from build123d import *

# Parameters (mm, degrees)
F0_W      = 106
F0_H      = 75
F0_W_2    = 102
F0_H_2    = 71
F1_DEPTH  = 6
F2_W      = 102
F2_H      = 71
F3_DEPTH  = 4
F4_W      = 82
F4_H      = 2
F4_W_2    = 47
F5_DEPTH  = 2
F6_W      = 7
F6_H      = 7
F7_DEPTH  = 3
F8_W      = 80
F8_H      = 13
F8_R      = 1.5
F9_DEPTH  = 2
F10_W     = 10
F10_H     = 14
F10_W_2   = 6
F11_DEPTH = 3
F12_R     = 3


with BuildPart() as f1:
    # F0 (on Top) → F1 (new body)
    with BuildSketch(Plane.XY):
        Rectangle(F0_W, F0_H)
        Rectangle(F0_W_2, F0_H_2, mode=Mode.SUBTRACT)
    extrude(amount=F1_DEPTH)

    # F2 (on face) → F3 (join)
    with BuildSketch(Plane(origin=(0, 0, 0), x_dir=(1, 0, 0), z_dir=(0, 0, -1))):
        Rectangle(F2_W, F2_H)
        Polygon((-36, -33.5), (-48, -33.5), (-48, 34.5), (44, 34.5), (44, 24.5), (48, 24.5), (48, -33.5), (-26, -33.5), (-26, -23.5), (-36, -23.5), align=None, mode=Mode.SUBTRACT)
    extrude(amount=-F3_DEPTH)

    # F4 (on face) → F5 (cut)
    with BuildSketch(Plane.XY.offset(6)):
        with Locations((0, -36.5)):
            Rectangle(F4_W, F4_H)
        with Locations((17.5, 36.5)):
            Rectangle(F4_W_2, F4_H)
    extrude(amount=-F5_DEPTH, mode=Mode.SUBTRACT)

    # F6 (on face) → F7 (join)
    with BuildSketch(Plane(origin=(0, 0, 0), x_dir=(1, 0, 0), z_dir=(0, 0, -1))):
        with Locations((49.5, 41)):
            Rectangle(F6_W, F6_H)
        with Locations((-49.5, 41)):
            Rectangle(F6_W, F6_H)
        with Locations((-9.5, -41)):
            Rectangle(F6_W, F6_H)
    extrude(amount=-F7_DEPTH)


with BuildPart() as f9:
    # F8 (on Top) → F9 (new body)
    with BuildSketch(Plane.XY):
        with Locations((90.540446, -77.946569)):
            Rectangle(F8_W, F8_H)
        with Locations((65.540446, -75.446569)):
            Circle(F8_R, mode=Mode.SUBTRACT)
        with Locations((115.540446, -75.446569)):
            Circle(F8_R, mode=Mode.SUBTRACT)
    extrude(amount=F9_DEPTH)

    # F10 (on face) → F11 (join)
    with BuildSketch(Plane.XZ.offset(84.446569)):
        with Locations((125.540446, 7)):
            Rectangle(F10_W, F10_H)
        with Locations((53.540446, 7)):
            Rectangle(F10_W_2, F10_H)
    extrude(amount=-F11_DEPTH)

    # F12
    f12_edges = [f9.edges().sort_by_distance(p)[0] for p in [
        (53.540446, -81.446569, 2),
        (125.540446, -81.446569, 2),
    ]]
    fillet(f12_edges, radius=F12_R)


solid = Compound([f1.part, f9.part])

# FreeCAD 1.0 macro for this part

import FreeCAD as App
import Part
import Sketcher
from FreeCAD import Vector


def edges_at(feature, points):
    """Names of the edges that pass closest to the given points."""
    edges = feature.Shape.Edges
    near = lambda p: min(range(len(edges)), key=lambda i: edges[i].distToShape(Part.Vertex(*p))[0])
    return sorted({f"Edge{near(p) + 1}" for p in points})


def add_polygon(sketch, points):
    """Adds a closed chain of lines whose ends are joined by coincident constraints."""
    first, n = sketch.GeometryCount, len(points)
    for a, b in zip(points, points[1:] + points[:1]):
        sketch.addGeometry(Part.LineSegment(App.Vector(*a, 0), App.Vector(*b, 0)), False)
    for i in range(n):
        sketch.addConstraint(Sketcher.Constraint("Coincident", first + i, 2, first + (i + 1) % n, 1))

doc = App.newDocument("Part")
body = doc.addObject("PartDesign::Body", "Body")

# Sketch on XY plane
sketch1 = body.newObject("Sketcher::SketchObject", "Sketch")
sketch1.AttachmentSupport = (doc.getObject("XY_Plane"), [""])
sketch1.MapMode = "FlatFace"
add_polygon(sketch1, [(-53, 37.5), (-53, -37.5), (53, -37.5), (53, 37.5)])  # lines 0-3
add_polygon(sketch1, [(51, -35.5), (-51, -35.5), (-51, 35.5), (51, 35.5)])  # lines 4-7
sketch1.addConstraint(Sketcher.Constraint("Vertical", 0))
sketch1.addConstraint(Sketcher.Constraint("Horizontal", 1))
sketch1.addConstraint(Sketcher.Constraint("Vertical", 2))
sketch1.addConstraint(Sketcher.Constraint("Horizontal", 3))
sketch1.addConstraint(Sketcher.Constraint("Horizontal", 4))
sketch1.addConstraint(Sketcher.Constraint("Vertical", 5))
sketch1.addConstraint(Sketcher.Constraint("Horizontal", 6))
sketch1.addConstraint(Sketcher.Constraint("Vertical", 7))
sketch1.addConstraint(Sketcher.Constraint("Symmetric", 0, 2, 2, 2, -1, 1))
sketch1.addConstraint(Sketcher.Constraint("Symmetric", 4, 2, 6, 2, -1, 1))
sketch1.addConstraint(Sketcher.Constraint("DistanceX", 1, 1, 1, 2, 106.0))
sketch1.addConstraint(Sketcher.Constraint("DistanceX", 4, 2, 4, 1, 102.0))
sketch1.addConstraint(Sketcher.Constraint("DistanceY", 0, 2, 0, 1, 75.0))
sketch1.addConstraint(Sketcher.Constraint("DistanceY", 5, 1, 5, 2, 71.0))
pad1 = body.newObject("PartDesign::Pad", "Pad")
pad1.Profile = sketch1
pad1.Length = 6

# Sketch on XY plane
sketch2 = body.newObject("Sketcher::SketchObject", "Sketch001")
sketch2.AttachmentSupport = (doc.getObject("XY_Plane"), [""])
sketch2.MapMode = "FlatFace"
add_polygon(sketch2, [(-51, -35.5), (-51, 35.5), (51, 35.5), (51, -35.5)])  # lines 0-3
add_polygon(sketch2, [(-36, 23.5), (-36, 33.5), (-48, 33.5), (-48, -34.5), (44, -34.5), (44, -24.5), (48, -24.5), (48, 33.5), (-26, 33.5), (-26, 23.5)])  # lines 4-13
sketch2.addConstraint(Sketcher.Constraint("Vertical", 0))
sketch2.addConstraint(Sketcher.Constraint("Horizontal", 1))
sketch2.addConstraint(Sketcher.Constraint("Vertical", 2))
sketch2.addConstraint(Sketcher.Constraint("Horizontal", 3))
sketch2.addConstraint(Sketcher.Constraint("Vertical", 4))
sketch2.addConstraint(Sketcher.Constraint("Horizontal", 5))
sketch2.addConstraint(Sketcher.Constraint("Vertical", 6))
sketch2.addConstraint(Sketcher.Constraint("Horizontal", 7))
sketch2.addConstraint(Sketcher.Constraint("Vertical", 8))
sketch2.addConstraint(Sketcher.Constraint("Horizontal", 9))
sketch2.addConstraint(Sketcher.Constraint("Vertical", 10))
sketch2.addConstraint(Sketcher.Constraint("Horizontal", 11))
sketch2.addConstraint(Sketcher.Constraint("Vertical", 12))
sketch2.addConstraint(Sketcher.Constraint("Horizontal", 13))
sketch2.addConstraint(Sketcher.Constraint("Symmetric", 0, 2, 2, 2, -1, 1))
sketch2.addConstraint(Sketcher.Constraint("Symmetric", 5, 2, 10, 2, -2))
sketch2.addConstraint(Sketcher.Constraint("Equal", 13, 4))
sketch2.addConstraint(Sketcher.Constraint("Equal", 4, 8))
sketch2.addConstraint(Sketcher.Constraint("DistanceX", 1, 1, 1, 2, 102.0))
sketch2.addConstraint(Sketcher.Constraint("DistanceX", 5, 2, 5, 1, 12.0))
sketch2.addConstraint(Sketcher.Constraint("DistanceX", 7, 1, 7, 2, 92.0))
sketch2.addConstraint(Sketcher.Constraint("DistanceX", 9, 1, 9, 2, 4.0))
sketch2.addConstraint(Sketcher.Constraint("DistanceX", 11, 2, 11, 1, 74.0))
sketch2.addConstraint(Sketcher.Constraint("DistanceY", 0, 1, 0, 2, 71.0))
sketch2.addConstraint(Sketcher.Constraint("DistanceY", 6, 2, 6, 1, 68.0))
sketch2.addConstraint(Sketcher.Constraint("DistanceY", 4, 2, 0, 2, 2.0))
pad2 = body.newObject("PartDesign::Pad", "Pad001")
pad2.Profile = sketch2
pad2.Length = 4

# Sketch on XY plane
sketch3 = body.newObject("Sketcher::SketchObject", "Sketch002")
sketch3.AttachmentSupport = (doc.getObject("XY_Plane"), [""])
sketch3.MapMode = "FlatFace"
sketch3.AttachmentOffset = App.Placement(Vector(0, 0, 6), App.Rotation())
add_polygon(sketch3, [(-41, -35.5), (-41, -37.5), (41, -37.5), (41, -35.5)])  # lines 0-3
add_polygon(sketch3, [(-6, 37.5), (-6, 35.5), (41, 35.5), (41, 37.5)])  # lines 4-7
sketch3.addConstraint(Sketcher.Constraint("Vertical", 0))
sketch3.addConstraint(Sketcher.Constraint("Horizontal", 1))
sketch3.addConstraint(Sketcher.Constraint("Vertical", 2))
sketch3.addConstraint(Sketcher.Constraint("Horizontal", 3))
sketch3.addConstraint(Sketcher.Constraint("Vertical", 4))
sketch3.addConstraint(Sketcher.Constraint("Horizontal", 5))
sketch3.addConstraint(Sketcher.Constraint("Vertical", 6))
sketch3.addConstraint(Sketcher.Constraint("Horizontal", 7))
sketch3.addConstraint(Sketcher.Constraint("Symmetric", 3, 2, 5, 2, -1, 1))
sketch3.addConstraint(Sketcher.Constraint("Symmetric", 1, 2, 6, 2, -1))
sketch3.addConstraint(Sketcher.Constraint("DistanceX", 1, 1, 1, 2, 82.0))
sketch3.addConstraint(Sketcher.Constraint("DistanceX", 5, 1, 5, 2, 47.0))
sketch3.addConstraint(Sketcher.Constraint("DistanceY", 0, 2, 0, 1, 2.0))
sketch3.addConstraint(Sketcher.Constraint("DistanceY", 3, 2, 4, 2, 71.0))
pocket1 = body.newObject("PartDesign::Pocket", "Pocket")
pocket1.Profile = sketch3
pocket1.Length = 2

# Sketch on XY plane
sketch4 = body.newObject("Sketcher::SketchObject", "Sketch003")
sketch4.AttachmentSupport = (doc.getObject("XY_Plane"), [""])
sketch4.MapMode = "FlatFace"
add_polygon(sketch4, [(46, -44.5), (46, -37.5), (53, -37.5), (53, -44.5)])  # lines 0-3
add_polygon(sketch4, [(-53, -44.5), (-53, -37.5), (-46, -37.5), (-46, -44.5)])  # lines 4-7
add_polygon(sketch4, [(-13, 37.5), (-13, 44.5), (-6, 44.5), (-6, 37.5)])  # lines 8-11
sketch4.addConstraint(Sketcher.Constraint("Vertical", 0))
sketch4.addConstraint(Sketcher.Constraint("Horizontal", 1))
sketch4.addConstraint(Sketcher.Constraint("Vertical", 2))
sketch4.addConstraint(Sketcher.Constraint("Horizontal", 3))
sketch4.addConstraint(Sketcher.Constraint("Vertical", 4))
sketch4.addConstraint(Sketcher.Constraint("Horizontal", 5))
sketch4.addConstraint(Sketcher.Constraint("Vertical", 6))
sketch4.addConstraint(Sketcher.Constraint("Horizontal", 7))
sketch4.addConstraint(Sketcher.Constraint("Vertical", 8))
sketch4.addConstraint(Sketcher.Constraint("Horizontal", 9))
sketch4.addConstraint(Sketcher.Constraint("Vertical", 10))
sketch4.addConstraint(Sketcher.Constraint("Horizontal", 11))
sketch4.addConstraint(Sketcher.Constraint("Symmetric", 1, 2, 4, 2, -2))
sketch4.addConstraint(Sketcher.Constraint("Symmetric", 3, 2, 6, 2, -2))
sketch4.addConstraint(Sketcher.Constraint("Equal", 7, 9))
sketch4.addConstraint(Sketcher.Constraint("Equal", 11, 0))
sketch4.addConstraint(Sketcher.Constraint("Equal", 6, 8))
sketch4.addConstraint(Sketcher.Constraint("DistanceX", 1, 1, 1, 2, 7.0))
sketch4.addConstraint(Sketcher.Constraint("DistanceX", -1, 1, 0, 2, 46.0))
sketch4.addConstraint(Sketcher.Constraint("DistanceX", 8, 2, -1, 1, 13.0))
sketch4.addConstraint(Sketcher.Constraint("DistanceY", 5, 2, 8, 2, 82.0))
sketch4.addConstraint(Sketcher.Constraint("DistanceY", 0, 2, -1, 1, 37.5))
pad3 = body.newObject("PartDesign::Pad", "Pad002")
pad3.Profile = sketch4
pad3.Length = 3
body2 = doc.addObject("PartDesign::Body", "Body001")

# Sketch on XY plane
sketch5 = body2.newObject("Sketcher::SketchObject", "Sketch004")
sketch5.AttachmentSupport = (doc.getObject("XY_Plane001"), [""])
sketch5.MapMode = "FlatFace"
add_polygon(sketch5, [(50.540446, -71.446569), (50.540446, -84.446569), (130.540446, -84.446569), (130.540446, -71.446569)])  # lines 0-3
sketch5.addGeometry(Part.Circle(Vector(65.540446, -75.446569, 0), Vector(0, 0, 1), 1.5), False)  # 4
sketch5.addGeometry(Part.Circle(Vector(115.540446, -75.446569, 0), Vector(0, 0, 1), 1.5), False)  # 5
sketch5.addConstraint(Sketcher.Constraint("Vertical", 0))
sketch5.addConstraint(Sketcher.Constraint("Horizontal", 1))
sketch5.addConstraint(Sketcher.Constraint("Vertical", 2))
sketch5.addConstraint(Sketcher.Constraint("Horizontal", 3))
sketch5.addConstraint(Sketcher.Constraint("Equal", 4, 5))
sketch5.addConstraint(Sketcher.Constraint("Horizontal", 4, 3, 5, 3))
sketch5.addConstraint(Sketcher.Constraint("Diameter", 4, 3.0))
sketch5.addConstraint(Sketcher.Constraint("DistanceX", 1, 1, 1, 2, 80.0))
sketch5.addConstraint(Sketcher.Constraint("DistanceY", 0, 2, 0, 1, 13.0))
sketch5.addConstraint(Sketcher.Constraint("DistanceX", 4, 3, 5, 3, 50.0))
sketch5.addConstraint(Sketcher.Constraint("DistanceX", 0, 2, 4, 3, 15.0))
sketch5.addConstraint(Sketcher.Constraint("DistanceY", 0, 2, 4, 3, 9.0))
sketch5.addConstraint(Sketcher.Constraint("DistanceY", 4, 3, -1, 1, 75.446569))
sketch5.addConstraint(Sketcher.Constraint("DistanceX", -1, 1, 4, 3, 65.540446))
pad4 = body2.newObject("PartDesign::Pad", "Pad003")
pad4.Profile = sketch5
pad4.Length = 2

# Sketch on XZ plane
sketch6 = body2.newObject("Sketcher::SketchObject", "Sketch005")
sketch6.AttachmentSupport = (doc.getObject("XZ_Plane001"), [""])
sketch6.MapMode = "FlatFace"
sketch6.AttachmentOffset = App.Placement(Vector(0, 0, 84.446569), App.Rotation())
add_polygon(sketch6, [(120.540446, 14), (120.540446, 0), (130.540446, 0), (130.540446, 14)])  # lines 0-3
add_polygon(sketch6, [(50.540446, 14), (50.540446, 0), (56.540446, 0), (56.540446, 14)])  # lines 4-7
sketch6.addConstraint(Sketcher.Constraint("Vertical", 0))
sketch6.addConstraint(Sketcher.Constraint("Horizontal", 1))
sketch6.addConstraint(Sketcher.Constraint("Vertical", 2))
sketch6.addConstraint(Sketcher.Constraint("Horizontal", 3))
sketch6.addConstraint(Sketcher.Constraint("Vertical", 4))
sketch6.addConstraint(Sketcher.Constraint("Horizontal", 5))
sketch6.addConstraint(Sketcher.Constraint("Vertical", 6))
sketch6.addConstraint(Sketcher.Constraint("Horizontal", 7))
sketch6.addConstraint(Sketcher.Constraint("PointOnObject", 0, 2, -1))
sketch6.addConstraint(Sketcher.Constraint("PointOnObject", 4, 2, -1))
sketch6.addConstraint(Sketcher.Constraint("Horizontal", 3, 2, 6, 2))
sketch6.addConstraint(Sketcher.Constraint("DistanceX", 1, 1, 1, 2, 10.0))
sketch6.addConstraint(Sketcher.Constraint("DistanceX", 5, 1, 5, 2, 6.0))
sketch6.addConstraint(Sketcher.Constraint("DistanceY", 0, 2, 0, 1, 14.0))
sketch6.addConstraint(Sketcher.Constraint("DistanceX", 4, 2, 0, 2, 70.0))
sketch6.addConstraint(Sketcher.Constraint("DistanceX", -1, 1, 0, 2, 120.540446))
pad5 = body2.newObject("PartDesign::Pad", "Pad004")
pad5.Profile = sketch6
pad5.Length = 3
pad5.Reversed = True
doc.recompute()

fillet = body2.newObject("PartDesign::Fillet", "Fillet")
fillet.Base = (pad5, edges_at(pad5, [(53.54, -81.447, 2), (125.54, -81.447, 2)]))
fillet.Radius = 3

doc.recompute()
